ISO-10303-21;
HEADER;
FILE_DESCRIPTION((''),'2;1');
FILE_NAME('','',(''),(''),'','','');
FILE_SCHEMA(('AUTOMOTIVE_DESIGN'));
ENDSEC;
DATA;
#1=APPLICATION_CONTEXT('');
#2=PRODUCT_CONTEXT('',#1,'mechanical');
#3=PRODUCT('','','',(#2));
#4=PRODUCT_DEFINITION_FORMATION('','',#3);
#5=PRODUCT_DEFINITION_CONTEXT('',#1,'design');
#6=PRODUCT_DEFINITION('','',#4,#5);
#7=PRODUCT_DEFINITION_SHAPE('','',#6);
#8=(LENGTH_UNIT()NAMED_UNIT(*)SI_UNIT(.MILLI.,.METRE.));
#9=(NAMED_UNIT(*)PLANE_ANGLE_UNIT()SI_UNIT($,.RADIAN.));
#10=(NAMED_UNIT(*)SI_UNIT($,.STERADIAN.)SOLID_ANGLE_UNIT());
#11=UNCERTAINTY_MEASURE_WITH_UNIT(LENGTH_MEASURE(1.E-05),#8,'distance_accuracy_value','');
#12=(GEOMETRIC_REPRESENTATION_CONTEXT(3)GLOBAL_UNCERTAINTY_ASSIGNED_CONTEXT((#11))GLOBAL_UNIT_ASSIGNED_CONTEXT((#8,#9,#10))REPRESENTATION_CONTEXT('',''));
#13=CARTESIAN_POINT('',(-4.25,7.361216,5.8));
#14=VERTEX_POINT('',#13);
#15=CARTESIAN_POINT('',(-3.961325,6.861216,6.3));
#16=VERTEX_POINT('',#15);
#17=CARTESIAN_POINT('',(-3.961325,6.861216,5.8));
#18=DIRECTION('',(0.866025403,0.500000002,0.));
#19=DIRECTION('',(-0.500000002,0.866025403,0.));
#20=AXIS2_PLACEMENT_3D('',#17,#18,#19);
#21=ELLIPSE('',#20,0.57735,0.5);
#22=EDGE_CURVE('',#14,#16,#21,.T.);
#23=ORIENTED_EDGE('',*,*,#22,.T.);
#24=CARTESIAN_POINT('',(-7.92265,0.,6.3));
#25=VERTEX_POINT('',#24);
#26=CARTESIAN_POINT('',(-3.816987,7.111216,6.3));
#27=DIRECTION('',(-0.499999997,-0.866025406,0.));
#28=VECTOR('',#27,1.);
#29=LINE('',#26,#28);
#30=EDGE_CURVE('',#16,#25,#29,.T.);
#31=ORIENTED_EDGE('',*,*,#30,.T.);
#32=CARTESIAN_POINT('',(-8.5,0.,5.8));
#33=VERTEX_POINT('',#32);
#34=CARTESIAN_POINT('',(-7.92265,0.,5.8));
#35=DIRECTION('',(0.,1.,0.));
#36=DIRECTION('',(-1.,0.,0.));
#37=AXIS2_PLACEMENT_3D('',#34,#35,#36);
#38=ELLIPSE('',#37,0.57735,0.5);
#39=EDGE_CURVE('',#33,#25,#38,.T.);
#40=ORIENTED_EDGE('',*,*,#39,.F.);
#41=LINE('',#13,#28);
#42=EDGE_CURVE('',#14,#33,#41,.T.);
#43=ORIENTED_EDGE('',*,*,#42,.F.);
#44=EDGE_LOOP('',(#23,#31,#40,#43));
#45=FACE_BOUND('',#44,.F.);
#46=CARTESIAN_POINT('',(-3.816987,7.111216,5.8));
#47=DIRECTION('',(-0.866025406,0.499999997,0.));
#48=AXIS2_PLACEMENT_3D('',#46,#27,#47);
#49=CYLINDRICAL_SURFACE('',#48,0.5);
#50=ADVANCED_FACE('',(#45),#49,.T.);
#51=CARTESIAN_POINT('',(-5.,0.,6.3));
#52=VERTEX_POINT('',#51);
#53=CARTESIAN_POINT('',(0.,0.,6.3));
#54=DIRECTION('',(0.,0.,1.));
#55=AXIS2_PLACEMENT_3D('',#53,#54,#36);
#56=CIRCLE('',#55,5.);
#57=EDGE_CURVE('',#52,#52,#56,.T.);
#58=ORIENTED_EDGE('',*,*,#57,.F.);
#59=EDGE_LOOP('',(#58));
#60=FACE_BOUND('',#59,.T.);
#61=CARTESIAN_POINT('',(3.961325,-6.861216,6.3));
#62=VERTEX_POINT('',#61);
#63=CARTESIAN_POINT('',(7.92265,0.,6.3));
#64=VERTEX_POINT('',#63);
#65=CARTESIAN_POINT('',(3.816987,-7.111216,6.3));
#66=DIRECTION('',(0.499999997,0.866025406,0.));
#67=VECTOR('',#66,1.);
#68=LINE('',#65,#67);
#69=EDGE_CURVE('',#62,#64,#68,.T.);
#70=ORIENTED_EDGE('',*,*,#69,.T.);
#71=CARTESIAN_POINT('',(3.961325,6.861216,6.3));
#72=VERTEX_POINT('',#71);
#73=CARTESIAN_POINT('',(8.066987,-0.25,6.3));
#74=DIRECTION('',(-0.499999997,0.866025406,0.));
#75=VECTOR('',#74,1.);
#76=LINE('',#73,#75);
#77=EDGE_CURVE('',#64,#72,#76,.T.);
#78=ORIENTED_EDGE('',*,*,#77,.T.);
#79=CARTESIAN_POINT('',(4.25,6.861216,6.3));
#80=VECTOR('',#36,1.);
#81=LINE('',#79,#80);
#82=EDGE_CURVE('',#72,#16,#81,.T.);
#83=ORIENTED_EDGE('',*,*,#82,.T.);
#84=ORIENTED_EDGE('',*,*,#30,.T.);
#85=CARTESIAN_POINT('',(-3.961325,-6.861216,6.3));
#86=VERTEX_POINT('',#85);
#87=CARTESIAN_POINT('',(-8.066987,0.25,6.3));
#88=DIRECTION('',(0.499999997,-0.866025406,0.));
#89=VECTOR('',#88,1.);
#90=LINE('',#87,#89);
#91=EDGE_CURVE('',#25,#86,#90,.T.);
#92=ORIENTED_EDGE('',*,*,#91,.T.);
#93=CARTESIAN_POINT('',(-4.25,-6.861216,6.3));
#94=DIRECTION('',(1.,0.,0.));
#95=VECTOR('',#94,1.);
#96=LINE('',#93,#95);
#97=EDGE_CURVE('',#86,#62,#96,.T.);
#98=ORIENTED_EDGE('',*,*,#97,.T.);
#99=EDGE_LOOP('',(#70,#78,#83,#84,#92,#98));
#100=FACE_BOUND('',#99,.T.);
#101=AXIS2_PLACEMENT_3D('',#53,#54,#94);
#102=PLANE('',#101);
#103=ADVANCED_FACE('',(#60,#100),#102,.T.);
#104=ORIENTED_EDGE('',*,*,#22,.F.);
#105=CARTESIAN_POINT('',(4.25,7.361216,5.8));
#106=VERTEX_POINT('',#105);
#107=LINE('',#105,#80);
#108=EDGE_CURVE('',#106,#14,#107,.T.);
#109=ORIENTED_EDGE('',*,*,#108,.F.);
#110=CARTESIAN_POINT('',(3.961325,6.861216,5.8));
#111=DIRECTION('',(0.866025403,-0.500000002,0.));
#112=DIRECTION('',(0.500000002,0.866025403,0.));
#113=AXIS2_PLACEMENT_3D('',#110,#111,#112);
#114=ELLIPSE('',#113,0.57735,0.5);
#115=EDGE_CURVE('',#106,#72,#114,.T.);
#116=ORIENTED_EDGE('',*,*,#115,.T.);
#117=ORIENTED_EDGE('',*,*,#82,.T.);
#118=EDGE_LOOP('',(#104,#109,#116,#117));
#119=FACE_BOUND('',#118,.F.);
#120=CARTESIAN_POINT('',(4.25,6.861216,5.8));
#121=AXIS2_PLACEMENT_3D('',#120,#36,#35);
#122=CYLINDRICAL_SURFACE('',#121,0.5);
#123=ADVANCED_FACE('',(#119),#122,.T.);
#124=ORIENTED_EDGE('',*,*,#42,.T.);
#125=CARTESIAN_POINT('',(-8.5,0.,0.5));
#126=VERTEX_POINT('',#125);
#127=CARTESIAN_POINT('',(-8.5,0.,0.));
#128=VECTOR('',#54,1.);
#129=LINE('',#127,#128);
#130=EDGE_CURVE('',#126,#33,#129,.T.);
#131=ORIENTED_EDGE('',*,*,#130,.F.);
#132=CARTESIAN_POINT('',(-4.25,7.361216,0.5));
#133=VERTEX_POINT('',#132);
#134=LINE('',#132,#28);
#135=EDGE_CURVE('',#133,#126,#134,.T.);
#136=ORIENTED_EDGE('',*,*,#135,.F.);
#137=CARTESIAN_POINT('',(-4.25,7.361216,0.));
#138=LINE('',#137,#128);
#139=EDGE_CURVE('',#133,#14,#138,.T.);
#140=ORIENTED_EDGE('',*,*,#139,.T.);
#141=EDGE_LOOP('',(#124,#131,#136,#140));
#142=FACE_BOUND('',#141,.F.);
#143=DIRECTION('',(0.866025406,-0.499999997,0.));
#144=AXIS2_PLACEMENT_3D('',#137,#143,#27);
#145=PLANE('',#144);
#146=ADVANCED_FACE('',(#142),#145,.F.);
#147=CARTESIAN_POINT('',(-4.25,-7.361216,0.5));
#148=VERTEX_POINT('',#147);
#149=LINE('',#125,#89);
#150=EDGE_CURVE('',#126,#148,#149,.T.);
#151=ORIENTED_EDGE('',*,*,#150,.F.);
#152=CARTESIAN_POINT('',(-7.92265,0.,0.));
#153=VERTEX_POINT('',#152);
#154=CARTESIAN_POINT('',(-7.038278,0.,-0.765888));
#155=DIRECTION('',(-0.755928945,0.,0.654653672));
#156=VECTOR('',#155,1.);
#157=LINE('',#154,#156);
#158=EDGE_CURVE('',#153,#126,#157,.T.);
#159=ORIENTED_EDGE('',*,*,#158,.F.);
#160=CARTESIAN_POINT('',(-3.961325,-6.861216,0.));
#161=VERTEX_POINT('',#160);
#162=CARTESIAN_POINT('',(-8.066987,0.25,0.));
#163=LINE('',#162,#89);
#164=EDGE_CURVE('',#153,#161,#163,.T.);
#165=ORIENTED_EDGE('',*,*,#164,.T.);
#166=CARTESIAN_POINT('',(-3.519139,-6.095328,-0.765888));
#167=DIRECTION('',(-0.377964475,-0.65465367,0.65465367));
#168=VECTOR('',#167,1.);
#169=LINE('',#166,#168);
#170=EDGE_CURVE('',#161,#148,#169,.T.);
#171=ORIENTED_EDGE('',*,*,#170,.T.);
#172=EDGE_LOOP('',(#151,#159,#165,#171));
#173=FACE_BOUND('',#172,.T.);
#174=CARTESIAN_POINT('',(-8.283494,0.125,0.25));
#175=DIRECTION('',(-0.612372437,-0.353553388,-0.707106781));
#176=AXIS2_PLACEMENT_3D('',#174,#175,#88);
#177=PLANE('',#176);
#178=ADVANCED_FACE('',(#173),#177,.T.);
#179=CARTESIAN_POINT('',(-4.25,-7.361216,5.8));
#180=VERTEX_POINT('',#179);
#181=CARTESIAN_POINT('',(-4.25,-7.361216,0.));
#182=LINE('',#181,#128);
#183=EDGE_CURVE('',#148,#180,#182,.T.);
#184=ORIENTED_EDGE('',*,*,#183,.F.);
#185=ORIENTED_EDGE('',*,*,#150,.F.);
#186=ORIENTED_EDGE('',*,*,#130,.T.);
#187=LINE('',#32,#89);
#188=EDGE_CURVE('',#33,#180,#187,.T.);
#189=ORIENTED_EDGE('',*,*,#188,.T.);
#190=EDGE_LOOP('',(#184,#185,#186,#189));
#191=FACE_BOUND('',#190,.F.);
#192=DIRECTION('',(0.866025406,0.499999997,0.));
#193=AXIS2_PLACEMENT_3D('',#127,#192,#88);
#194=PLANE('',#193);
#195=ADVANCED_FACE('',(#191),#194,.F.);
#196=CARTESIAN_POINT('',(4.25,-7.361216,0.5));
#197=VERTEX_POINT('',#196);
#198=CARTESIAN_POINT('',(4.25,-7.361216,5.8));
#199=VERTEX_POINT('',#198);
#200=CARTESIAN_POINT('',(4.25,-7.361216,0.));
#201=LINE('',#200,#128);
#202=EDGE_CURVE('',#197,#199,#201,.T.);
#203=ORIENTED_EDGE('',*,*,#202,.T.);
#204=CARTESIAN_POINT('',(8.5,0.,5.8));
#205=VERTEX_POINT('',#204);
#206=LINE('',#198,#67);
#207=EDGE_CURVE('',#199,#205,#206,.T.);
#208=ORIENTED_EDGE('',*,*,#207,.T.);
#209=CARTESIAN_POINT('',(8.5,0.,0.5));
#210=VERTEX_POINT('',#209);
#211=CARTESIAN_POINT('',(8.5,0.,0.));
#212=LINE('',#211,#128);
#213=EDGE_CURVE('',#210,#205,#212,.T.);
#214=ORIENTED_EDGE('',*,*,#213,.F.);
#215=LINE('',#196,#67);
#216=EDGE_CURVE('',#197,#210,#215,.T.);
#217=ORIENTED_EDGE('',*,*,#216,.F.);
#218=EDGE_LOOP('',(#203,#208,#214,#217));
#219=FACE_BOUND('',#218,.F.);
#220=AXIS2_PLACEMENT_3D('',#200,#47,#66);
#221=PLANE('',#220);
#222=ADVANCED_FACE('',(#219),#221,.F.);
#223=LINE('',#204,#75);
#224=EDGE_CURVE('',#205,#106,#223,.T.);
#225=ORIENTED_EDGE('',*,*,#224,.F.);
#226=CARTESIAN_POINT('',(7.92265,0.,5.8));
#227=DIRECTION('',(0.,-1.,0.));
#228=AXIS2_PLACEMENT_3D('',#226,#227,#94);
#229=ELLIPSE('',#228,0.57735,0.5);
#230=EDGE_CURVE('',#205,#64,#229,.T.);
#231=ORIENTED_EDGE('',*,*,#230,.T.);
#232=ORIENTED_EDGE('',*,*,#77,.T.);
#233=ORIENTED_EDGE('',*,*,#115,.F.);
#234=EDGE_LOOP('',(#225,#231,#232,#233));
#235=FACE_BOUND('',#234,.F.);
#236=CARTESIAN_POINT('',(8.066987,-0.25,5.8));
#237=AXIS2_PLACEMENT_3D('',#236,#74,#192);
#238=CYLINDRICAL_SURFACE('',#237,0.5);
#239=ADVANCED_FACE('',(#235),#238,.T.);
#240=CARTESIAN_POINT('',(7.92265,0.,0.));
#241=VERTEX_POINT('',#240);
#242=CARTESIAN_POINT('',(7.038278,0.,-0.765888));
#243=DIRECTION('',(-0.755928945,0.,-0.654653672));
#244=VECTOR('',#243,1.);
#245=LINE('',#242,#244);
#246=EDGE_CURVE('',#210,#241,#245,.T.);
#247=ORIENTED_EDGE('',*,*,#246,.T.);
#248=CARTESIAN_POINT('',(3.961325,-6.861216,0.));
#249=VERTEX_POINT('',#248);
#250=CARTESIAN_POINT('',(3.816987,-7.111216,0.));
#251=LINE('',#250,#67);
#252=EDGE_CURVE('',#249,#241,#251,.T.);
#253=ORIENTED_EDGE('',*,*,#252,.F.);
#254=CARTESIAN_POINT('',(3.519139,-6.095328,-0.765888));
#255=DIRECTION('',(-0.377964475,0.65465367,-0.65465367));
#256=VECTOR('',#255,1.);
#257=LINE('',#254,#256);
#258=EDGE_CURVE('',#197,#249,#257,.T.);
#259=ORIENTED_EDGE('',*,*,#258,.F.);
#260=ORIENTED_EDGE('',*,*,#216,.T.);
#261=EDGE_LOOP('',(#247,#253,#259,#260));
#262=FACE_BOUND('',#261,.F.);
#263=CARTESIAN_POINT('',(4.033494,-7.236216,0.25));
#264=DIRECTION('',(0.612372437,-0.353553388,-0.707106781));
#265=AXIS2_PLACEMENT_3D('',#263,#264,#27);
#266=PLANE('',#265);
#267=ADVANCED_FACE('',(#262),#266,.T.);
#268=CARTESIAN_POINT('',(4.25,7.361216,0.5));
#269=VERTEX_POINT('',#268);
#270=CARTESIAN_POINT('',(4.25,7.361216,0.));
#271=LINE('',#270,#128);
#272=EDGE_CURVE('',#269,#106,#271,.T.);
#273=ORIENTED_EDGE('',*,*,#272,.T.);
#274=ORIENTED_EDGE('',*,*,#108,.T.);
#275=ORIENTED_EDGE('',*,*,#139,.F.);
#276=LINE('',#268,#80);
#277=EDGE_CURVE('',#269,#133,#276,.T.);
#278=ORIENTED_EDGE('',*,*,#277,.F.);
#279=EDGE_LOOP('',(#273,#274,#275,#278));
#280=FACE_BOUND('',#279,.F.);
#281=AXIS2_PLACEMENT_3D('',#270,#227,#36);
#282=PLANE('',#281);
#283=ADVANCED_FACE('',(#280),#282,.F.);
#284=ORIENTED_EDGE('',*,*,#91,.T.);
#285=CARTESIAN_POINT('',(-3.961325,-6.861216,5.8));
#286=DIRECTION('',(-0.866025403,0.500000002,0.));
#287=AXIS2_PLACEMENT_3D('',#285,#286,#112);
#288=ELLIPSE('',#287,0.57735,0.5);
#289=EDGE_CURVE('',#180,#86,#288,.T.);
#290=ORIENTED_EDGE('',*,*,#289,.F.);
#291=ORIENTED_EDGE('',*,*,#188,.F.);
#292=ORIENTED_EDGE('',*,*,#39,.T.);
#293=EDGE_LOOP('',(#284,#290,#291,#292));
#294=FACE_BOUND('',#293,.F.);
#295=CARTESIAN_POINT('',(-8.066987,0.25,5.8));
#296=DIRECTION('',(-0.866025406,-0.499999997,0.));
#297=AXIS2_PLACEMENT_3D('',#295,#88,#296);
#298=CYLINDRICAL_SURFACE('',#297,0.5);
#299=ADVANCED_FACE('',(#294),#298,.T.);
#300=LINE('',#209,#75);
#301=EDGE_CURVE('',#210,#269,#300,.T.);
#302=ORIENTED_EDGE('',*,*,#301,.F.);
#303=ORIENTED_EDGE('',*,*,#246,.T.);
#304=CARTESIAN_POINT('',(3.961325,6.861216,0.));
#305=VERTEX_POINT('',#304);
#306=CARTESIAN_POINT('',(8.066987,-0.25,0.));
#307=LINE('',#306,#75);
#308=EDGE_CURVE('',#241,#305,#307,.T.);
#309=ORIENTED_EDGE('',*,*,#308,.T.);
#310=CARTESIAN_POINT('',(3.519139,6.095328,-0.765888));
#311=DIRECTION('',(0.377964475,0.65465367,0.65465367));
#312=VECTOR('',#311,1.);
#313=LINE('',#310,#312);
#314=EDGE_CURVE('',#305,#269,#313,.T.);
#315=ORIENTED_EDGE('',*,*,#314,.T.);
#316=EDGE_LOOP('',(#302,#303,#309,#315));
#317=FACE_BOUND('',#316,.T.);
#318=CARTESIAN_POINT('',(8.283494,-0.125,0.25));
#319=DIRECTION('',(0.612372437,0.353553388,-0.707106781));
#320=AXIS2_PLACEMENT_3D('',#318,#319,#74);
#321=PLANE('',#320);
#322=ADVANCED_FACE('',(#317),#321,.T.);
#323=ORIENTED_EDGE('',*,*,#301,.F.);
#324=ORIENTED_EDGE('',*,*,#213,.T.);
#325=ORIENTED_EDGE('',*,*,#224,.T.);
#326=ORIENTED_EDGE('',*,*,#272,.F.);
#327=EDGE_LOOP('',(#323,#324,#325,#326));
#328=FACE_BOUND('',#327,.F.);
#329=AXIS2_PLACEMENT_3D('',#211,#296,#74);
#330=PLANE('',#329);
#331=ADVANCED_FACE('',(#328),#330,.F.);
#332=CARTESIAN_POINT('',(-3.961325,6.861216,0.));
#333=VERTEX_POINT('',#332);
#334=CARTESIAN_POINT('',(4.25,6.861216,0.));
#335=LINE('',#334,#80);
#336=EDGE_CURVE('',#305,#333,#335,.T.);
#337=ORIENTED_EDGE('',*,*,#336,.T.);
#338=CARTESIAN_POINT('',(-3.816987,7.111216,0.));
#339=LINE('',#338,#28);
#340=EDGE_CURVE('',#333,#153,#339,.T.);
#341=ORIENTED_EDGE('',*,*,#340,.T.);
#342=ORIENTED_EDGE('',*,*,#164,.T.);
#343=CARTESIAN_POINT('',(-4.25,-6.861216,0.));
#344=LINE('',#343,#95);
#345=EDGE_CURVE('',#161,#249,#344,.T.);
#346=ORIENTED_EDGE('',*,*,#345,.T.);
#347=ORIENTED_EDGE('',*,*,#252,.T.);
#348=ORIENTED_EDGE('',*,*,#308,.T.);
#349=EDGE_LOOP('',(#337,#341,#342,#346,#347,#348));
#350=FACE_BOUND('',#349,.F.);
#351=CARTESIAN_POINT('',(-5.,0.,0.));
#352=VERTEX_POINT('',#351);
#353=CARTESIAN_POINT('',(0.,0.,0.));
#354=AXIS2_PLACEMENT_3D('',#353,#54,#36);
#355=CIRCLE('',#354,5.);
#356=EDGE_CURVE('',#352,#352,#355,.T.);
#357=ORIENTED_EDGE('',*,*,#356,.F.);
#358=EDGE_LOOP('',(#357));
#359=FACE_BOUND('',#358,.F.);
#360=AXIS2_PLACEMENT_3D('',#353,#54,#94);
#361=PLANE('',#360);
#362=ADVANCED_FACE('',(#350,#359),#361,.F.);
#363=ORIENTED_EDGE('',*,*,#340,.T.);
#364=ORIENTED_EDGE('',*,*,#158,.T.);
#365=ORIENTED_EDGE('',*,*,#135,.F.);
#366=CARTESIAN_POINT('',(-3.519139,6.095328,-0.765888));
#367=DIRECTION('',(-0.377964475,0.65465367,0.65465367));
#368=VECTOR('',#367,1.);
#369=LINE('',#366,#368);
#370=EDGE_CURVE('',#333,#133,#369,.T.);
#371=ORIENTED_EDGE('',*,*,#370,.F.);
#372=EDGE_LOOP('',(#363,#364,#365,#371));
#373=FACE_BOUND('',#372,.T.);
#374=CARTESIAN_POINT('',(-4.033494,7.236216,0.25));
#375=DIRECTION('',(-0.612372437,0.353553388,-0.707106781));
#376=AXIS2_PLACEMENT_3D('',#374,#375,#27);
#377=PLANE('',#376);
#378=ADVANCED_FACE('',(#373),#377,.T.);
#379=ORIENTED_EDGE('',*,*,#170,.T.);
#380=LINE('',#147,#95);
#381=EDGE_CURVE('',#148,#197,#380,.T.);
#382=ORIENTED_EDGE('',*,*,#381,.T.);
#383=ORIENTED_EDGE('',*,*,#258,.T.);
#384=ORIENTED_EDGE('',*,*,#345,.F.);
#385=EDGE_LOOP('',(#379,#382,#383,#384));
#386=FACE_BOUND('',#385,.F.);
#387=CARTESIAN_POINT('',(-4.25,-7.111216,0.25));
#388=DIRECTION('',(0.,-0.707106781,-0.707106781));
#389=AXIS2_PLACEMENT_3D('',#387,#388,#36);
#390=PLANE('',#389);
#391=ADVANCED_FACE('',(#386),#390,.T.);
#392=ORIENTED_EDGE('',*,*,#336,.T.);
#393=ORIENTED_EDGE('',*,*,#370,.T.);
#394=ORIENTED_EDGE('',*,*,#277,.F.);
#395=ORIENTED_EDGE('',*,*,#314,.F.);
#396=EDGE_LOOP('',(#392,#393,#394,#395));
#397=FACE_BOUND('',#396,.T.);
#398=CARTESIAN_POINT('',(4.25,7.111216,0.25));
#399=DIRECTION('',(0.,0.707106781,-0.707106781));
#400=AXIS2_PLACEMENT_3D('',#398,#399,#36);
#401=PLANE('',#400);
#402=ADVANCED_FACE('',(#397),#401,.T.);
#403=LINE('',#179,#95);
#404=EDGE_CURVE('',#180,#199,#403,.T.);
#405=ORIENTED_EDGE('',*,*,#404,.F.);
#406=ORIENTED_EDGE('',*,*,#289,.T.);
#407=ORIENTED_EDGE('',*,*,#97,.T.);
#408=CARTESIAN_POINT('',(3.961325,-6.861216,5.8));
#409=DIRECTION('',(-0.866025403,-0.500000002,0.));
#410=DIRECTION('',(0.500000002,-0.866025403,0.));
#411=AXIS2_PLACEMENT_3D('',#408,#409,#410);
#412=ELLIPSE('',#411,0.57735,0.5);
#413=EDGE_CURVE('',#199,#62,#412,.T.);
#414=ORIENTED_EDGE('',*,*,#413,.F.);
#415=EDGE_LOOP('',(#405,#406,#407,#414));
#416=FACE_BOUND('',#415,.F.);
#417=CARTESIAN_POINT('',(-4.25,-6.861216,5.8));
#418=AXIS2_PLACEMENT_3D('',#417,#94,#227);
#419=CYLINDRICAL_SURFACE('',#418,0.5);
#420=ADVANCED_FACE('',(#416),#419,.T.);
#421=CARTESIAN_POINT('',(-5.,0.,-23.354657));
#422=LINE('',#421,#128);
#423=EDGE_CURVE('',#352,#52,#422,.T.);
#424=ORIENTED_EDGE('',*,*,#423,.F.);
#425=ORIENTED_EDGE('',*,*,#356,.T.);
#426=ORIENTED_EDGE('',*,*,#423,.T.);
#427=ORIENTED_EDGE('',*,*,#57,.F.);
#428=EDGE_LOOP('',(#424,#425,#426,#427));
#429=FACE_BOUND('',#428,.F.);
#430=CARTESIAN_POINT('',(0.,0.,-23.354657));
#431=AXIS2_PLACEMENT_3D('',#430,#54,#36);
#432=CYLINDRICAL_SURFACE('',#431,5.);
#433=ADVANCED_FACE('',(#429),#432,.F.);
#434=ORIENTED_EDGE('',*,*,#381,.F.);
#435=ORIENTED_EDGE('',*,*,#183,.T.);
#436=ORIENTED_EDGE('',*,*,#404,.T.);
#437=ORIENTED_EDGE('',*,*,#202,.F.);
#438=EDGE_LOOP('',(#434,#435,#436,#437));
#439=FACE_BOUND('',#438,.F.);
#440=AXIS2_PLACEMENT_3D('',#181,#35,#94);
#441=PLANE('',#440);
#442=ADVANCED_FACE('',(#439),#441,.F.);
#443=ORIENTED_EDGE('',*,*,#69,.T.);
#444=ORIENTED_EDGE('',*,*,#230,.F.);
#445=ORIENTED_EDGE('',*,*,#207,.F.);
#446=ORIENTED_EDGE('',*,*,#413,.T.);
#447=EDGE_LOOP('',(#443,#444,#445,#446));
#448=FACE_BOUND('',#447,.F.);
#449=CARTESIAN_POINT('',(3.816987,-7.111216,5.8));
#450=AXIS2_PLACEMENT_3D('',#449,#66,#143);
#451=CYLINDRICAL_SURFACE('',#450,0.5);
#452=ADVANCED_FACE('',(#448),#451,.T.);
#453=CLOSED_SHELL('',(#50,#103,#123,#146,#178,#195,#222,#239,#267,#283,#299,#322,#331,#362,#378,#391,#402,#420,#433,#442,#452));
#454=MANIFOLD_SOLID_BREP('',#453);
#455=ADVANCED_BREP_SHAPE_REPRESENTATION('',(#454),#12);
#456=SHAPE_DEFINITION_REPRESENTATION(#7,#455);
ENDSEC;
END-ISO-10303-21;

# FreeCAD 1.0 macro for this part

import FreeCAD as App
import Part
import Sketcher

V = App.Vector
Q = App.Units.Quantity


def edges_at(feature, points):
    """Names of the edges that pass closest to the given points."""
    edges = feature.Shape.Edges
    near = lambda p: min(range(len(edges)), key=lambda i: edges[i].distToShape(Part.Vertex(*p))[0])
    return sorted({f"Edge{near(p) + 1}" for p in points})

doc = App.newDocument("Part")
body = doc.addObject("PartDesign::Body", "Body")

sketch1 = body.newObject("Sketcher::SketchObject", "Sketch")
sketch1.AttachmentSupport = (doc.getObject("XY_Plane"), [""])
sketch1.MapMode = "FlatFace"
sketch1.addGeometry(Part.LineSegment(V(4.25, -7.361216, 0), V(8.5, 0, 0)), False)
sketch1.addGeometry(Part.LineSegment(V(8.5, 0, 0), V(4.25, 7.361216, 0)), False)
sketch1.addGeometry(Part.LineSegment(V(4.25, 7.361216, 0), V(-4.25, 7.361216, 0)), False)
sketch1.addGeometry(Part.LineSegment(V(-4.25, 7.361216, 0), V(-8.5, 0, 0)), False)
sketch1.addGeometry(Part.LineSegment(V(-8.5, 0, 0), V(-4.25, -7.361216, 0)), False)
sketch1.addGeometry(Part.LineSegment(V(-4.25, -7.361216, 0), V(4.25, -7.361216, 0)), False)
sketch1.addConstraint(Sketcher.Constraint("Coincident", 0, 2, 1, 1))
sketch1.addConstraint(Sketcher.Constraint("Coincident", 1, 2, 2, 1))
sketch1.addConstraint(Sketcher.Constraint("Coincident", 2, 2, 3, 1))
sketch1.addConstraint(Sketcher.Constraint("Coincident", 3, 2, 4, 1))
sketch1.addConstraint(Sketcher.Constraint("Coincident", 4, 2, 5, 1))
sketch1.addConstraint(Sketcher.Constraint("Coincident", 5, 2, 0, 1))
sketch1.addConstraint(Sketcher.Constraint("Horizontal", 2))
sketch1.addConstraint(Sketcher.Constraint("Horizontal", 5))
sketch1.addConstraint(Sketcher.Constraint("Symmetric", 0, 2, 3, 2, -1, 1))
sketch1.addConstraint(Sketcher.Constraint("Symmetric", 1, 2, 4, 2, -1, 1))
sketch1.addConstraint(Sketcher.Constraint("PointOnObject", 0, 2, -1))
sketch1.addConstraint(Sketcher.Constraint("Parallel", 0, 3))
sketch1.addConstraint(Sketcher.Constraint("Vertical", 2, 2, 4, 2))
sketch1.addConstraint(Sketcher.Constraint("Angle", 0, Q("60 deg")))
sketch1.addConstraint(Sketcher.Constraint("DistanceX", 2, 2, 2, 1, Q("8.5 mm")))
sketch1.addConstraint(Sketcher.Constraint("DistanceX", 3, 2, 0, 2, Q("17 mm")))
pad1 = body.newObject("PartDesign::Pad", "Pad")
pad1.Profile = sketch1
pad1.Length = 6.3
doc.recompute()

fillet = body.newObject("PartDesign::Fillet", "Fillet")
fillet.Base = (pad1, edges_at(pad1, [
    (0, -7.361, 6.3),
    (6.375, -3.681, 6.3),
    (6.375, 3.681, 6.3),
    (0, 7.361, 6.3),
    (-6.375, 3.681, 6.3),
    (-6.375, -3.681, 6.3),
]))
fillet.Radius = 0.5

sketch2 = body.newObject("Sketcher::SketchObject", "Sketch001")
sketch2.AttachmentSupport = (doc.getObject("XY_Plane"), [""])
sketch2.MapMode = "FlatFace"
sketch2.addGeometry(Part.Circle(V(0, 0, 0), V(0, 0, 1), 5), False)
sketch2.addConstraint(Sketcher.Constraint("Coincident", 0, 3, -1, 1))
sketch2.addConstraint(Sketcher.Constraint("Diameter", 0, Q("10 mm")))
doc.recompute()
hole = body.newObject("PartDesign::Hole", "Hole")
hole.Profile = sketch2
hole.ThreadType = "None"
hole.Diameter = 10
hole.DepthType = "ThroughAll"
hole.Reversed = True
doc.recompute()

chamfer = body.newObject("PartDesign::Chamfer", "Chamfer")
chamfer.Base = (hole, edges_at(hole, [
    (-6.375, 3.681, 0),
    (0, 7.361, 0),
    (-6.375, -3.681, 0),
    (0, -7.361, 0),
    (6.375, -3.681, 0),
    (6.375, 3.681, 0),
]))
chamfer.Size = 0.5

doc.recompute()
